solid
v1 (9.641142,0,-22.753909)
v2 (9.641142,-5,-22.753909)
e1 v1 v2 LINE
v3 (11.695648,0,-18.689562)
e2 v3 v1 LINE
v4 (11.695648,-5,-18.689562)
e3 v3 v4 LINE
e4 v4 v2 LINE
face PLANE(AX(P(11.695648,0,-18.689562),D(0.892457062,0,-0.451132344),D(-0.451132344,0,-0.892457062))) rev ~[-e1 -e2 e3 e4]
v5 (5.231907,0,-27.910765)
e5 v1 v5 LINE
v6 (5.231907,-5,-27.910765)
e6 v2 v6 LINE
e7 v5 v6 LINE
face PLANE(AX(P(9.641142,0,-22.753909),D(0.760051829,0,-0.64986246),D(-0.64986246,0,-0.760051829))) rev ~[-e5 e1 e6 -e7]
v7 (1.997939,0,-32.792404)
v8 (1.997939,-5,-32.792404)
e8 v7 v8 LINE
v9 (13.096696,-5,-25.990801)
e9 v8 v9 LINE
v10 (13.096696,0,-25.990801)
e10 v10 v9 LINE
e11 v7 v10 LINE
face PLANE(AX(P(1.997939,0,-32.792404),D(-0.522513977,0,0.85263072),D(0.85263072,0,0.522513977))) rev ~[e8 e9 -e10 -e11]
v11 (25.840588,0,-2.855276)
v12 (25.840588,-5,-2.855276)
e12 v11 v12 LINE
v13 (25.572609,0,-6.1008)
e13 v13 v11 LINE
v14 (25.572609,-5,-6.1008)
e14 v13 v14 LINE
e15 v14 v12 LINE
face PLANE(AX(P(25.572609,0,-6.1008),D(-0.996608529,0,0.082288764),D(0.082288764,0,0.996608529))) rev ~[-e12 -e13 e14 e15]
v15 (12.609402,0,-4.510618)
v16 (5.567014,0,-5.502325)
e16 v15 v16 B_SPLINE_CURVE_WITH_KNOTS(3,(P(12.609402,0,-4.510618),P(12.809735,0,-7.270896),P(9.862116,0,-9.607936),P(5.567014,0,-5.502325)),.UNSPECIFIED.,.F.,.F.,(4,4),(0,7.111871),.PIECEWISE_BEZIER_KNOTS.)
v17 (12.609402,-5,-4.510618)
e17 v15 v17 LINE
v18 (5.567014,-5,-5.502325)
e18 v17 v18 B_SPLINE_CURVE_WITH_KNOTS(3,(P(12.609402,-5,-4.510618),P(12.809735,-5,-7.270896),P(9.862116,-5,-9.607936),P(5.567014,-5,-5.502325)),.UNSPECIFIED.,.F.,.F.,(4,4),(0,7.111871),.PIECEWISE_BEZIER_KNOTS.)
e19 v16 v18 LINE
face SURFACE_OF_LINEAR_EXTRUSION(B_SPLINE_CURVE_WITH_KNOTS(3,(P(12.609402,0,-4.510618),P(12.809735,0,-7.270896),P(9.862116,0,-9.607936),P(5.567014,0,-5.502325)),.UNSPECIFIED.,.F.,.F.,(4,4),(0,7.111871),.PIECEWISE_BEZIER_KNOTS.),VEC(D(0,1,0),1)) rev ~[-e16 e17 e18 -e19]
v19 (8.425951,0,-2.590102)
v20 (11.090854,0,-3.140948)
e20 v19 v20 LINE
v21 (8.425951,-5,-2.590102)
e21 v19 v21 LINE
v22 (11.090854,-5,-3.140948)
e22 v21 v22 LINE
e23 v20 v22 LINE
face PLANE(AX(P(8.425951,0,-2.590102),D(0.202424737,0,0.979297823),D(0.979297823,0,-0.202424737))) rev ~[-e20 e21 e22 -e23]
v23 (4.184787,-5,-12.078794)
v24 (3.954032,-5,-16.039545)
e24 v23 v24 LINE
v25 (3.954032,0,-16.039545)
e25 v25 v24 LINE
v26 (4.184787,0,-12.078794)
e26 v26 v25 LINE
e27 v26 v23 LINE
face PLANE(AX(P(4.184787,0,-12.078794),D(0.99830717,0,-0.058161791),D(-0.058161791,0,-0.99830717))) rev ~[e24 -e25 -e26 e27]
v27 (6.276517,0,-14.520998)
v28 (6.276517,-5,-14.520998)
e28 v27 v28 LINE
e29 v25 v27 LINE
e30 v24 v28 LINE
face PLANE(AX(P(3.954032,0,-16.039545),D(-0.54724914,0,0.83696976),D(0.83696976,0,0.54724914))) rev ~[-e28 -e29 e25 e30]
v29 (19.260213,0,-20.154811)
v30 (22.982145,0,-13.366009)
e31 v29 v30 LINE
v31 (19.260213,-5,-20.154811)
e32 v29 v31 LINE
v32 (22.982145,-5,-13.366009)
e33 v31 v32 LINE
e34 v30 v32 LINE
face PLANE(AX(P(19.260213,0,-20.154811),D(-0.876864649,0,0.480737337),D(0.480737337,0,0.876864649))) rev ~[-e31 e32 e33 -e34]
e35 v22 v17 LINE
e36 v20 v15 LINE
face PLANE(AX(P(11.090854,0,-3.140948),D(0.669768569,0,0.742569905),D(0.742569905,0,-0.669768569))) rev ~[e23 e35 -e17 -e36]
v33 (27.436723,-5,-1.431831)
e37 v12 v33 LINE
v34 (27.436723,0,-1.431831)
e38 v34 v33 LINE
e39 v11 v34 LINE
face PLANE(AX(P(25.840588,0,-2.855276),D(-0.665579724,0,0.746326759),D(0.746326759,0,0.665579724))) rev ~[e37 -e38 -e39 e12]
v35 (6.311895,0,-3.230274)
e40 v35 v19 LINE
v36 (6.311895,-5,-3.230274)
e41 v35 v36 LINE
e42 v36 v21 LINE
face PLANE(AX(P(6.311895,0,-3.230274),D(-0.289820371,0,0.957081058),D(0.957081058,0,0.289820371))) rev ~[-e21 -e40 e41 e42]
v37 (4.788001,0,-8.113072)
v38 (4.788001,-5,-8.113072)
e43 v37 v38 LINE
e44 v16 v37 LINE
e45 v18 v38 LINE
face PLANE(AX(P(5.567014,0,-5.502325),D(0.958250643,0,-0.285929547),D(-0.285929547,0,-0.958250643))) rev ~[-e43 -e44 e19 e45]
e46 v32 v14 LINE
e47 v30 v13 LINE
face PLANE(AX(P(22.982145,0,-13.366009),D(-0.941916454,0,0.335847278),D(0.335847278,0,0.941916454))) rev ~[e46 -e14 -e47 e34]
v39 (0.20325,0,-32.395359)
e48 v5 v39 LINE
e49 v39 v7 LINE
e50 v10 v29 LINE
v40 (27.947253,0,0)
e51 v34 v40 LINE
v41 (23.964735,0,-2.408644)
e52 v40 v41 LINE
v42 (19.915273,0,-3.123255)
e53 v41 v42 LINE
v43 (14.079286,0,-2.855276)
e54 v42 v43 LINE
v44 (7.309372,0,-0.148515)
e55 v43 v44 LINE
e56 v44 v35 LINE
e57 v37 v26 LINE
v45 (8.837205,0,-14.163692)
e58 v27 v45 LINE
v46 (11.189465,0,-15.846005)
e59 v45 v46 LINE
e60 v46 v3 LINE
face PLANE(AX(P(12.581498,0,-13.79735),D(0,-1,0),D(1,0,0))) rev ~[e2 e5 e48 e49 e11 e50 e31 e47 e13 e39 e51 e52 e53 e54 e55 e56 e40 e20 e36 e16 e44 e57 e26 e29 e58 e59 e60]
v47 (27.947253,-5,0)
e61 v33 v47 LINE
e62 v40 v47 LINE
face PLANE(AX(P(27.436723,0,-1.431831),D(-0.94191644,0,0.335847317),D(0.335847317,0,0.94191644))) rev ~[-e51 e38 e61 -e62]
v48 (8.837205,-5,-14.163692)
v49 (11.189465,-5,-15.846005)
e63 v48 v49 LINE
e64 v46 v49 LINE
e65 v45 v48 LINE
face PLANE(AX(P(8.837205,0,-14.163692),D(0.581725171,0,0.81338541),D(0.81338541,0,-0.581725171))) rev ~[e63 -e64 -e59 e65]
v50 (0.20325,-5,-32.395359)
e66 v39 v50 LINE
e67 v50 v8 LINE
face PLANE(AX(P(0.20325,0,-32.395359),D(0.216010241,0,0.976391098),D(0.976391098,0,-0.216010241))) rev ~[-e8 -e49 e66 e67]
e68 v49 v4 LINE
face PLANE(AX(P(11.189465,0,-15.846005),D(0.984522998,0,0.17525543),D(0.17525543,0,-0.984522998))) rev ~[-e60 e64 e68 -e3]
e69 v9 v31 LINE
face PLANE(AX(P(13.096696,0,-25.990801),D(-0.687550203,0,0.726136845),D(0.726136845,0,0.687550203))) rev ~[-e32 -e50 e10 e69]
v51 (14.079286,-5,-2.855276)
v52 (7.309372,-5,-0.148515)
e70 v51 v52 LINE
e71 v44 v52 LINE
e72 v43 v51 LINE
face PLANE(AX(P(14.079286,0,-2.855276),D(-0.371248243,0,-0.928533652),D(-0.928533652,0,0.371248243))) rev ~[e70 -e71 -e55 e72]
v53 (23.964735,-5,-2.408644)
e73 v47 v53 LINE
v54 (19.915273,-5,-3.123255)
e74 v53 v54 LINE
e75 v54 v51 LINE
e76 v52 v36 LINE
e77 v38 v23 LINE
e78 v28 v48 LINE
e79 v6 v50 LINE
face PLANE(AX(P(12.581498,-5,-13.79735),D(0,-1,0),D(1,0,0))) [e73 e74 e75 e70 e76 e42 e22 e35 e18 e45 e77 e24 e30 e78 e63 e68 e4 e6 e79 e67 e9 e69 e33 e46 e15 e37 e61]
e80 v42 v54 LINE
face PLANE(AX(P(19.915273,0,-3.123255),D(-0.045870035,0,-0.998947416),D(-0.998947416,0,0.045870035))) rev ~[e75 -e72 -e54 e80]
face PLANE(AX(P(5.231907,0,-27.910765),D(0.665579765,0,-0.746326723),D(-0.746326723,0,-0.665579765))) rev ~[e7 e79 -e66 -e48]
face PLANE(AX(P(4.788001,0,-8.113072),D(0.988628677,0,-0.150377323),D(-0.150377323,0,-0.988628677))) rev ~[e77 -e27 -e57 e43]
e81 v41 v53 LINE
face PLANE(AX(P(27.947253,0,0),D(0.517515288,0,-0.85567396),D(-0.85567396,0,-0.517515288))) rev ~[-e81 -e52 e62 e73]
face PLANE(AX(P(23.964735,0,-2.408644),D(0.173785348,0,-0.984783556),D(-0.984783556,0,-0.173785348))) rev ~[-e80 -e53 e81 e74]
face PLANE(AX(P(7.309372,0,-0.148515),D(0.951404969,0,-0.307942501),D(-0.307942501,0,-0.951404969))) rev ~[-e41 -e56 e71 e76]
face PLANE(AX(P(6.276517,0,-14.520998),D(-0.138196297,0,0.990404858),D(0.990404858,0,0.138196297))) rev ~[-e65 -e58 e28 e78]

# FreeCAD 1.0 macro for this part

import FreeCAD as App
import Part
import Sketcher
from FreeCAD import Vector

doc = App.newDocument("Part")
body = doc.addObject("PartDesign::Body", "Body")

# Sketch on XZ plane
sketch1 = doc.addObject("Sketcher::SketchObject", "Sketch")
body.addObject(sketch1)
sketch1.AttachmentSupport = (doc.XZ_Plane, [""])
sketch1.MapMode = "FlatFace"
sketch1.addGeometry([
    Part.LineSegment(Vector(14.079286, -2.855276, 0), Vector(7.309372, -0.148515, 0)),  # 0
    Part.LineSegment(Vector(7.309372, -0.148515, 0), Vector(6.311895, -3.230274, 0)),  # 1
    Part.LineSegment(Vector(6.311895, -3.230274, 0), Vector(8.425951, -2.590102, 0)),  # 2
    Part.LineSegment(Vector(8.425951, -2.590102, 0), Vector(11.090854, -3.140948, 0)),  # 3
    Part.LineSegment(Vector(11.090854, -3.140948, 0), Vector(12.609402, -4.510618, 0)),  # 4
    Part.BSplineCurve([Vector(12.609402, -4.510618, 0), Vector(12.809735, -7.270896, 0), Vector(9.862116, -9.607936, 0), Vector(5.567014, -5.502325, 0)], [4, 4], [0, 7.111871], False, 3, [1, 1, 1, 1], False),  # 5
    Part.LineSegment(Vector(5.567014, -5.502325, 0), Vector(4.788001, -8.113072, 0)),  # 6
    Part.LineSegment(Vector(4.788001, -8.113072, 0), Vector(4.184787, -12.078794, 0)),  # 7
    Part.LineSegment(Vector(4.184787, -12.078794, 0), Vector(3.954032, -16.039545, 0)),  # 8
    Part.LineSegment(Vector(3.954032, -16.039545, 0), Vector(6.276517, -14.520998, 0)),  # 9
    Part.LineSegment(Vector(6.276517, -14.520998, 0), Vector(8.837205, -14.163692, 0)),  # 10
    Part.LineSegment(Vector(8.837205, -14.163692, 0), Vector(11.189465, -15.846005, 0)),  # 11
    Part.LineSegment(Vector(11.189465, -15.846005, 0), Vector(11.695648, -18.689562, 0)),  # 12
    Part.LineSegment(Vector(11.695648, -18.689562, 0), Vector(9.641142, -22.753909, 0)),  # 13
    Part.LineSegment(Vector(9.641142, -22.753909, 0), Vector(5.231907, -27.910765, 0)),  # 14
    Part.LineSegment(Vector(5.231907, -27.910765, 0), Vector(0.20325, -32.395359, 0)),  # 15
    Part.LineSegment(Vector(0.20325, -32.395359, 0), Vector(1.997939, -32.792404, 0)),  # 16
    Part.LineSegment(Vector(1.997939, -32.792404, 0), Vector(13.096696, -25.990801, 0)),  # 17
    Part.LineSegment(Vector(13.096696, -25.990801, 0), Vector(19.260213, -20.154811, 0)),  # 18
    Part.LineSegment(Vector(19.260213, -20.154811, 0), Vector(22.982145, -13.366009, 0)),  # 19
    Part.LineSegment(Vector(22.982145, -13.366009, 0), Vector(25.572609, -6.1008, 0)),  # 20
    Part.LineSegment(Vector(25.572609, -6.1008, 0), Vector(25.840588, -2.855276, 0)),  # 21
    Part.LineSegment(Vector(25.840588, -2.855276, 0), Vector(27.436723, -1.431831, 0)),  # 22
    Part.LineSegment(Vector(27.436723, -1.431831, 0), Vector(27.947253, 0, 0)),  # 23
    Part.LineSegment(Vector(27.947253, 0, 0), Vector(23.964735, -2.408644, 0)),  # 24
    Part.LineSegment(Vector(23.964735, -2.408644, 0), Vector(19.915273, -3.123255, 0)),  # 25
    Part.LineSegment(Vector(19.915273, -3.123255, 0), Vector(14.079286, -2.855276, 0)),  # 26
], False)
sketch1.addConstraint([
    Sketcher.Constraint("Block", 5),
    Sketcher.Constraint("Coincident", 0, 2, 1, 1),
    Sketcher.Constraint("Coincident", 1, 2, 2, 1),
    Sketcher.Constraint("Coincident", 2, 2, 3, 1),
    Sketcher.Constraint("Coincident", 3, 2, 4, 1),
    Sketcher.Constraint("Coincident", 4, 2, 5, 1),
    Sketcher.Constraint("Coincident", 5, 2, 6, 1),
    Sketcher.Constraint("Coincident", 6, 2, 7, 1),
    Sketcher.Constraint("Coincident", 7, 2, 8, 1),
    Sketcher.Constraint("Coincident", 8, 2, 9, 1),
    Sketcher.Constraint("Coincident", 9, 2, 10, 1),
    Sketcher.Constraint("Coincident", 10, 2, 11, 1),
    Sketcher.Constraint("Coincident", 11, 2, 12, 1),
    Sketcher.Constraint("Coincident", 12, 2, 13, 1),
    Sketcher.Constraint("Coincident", 13, 2, 14, 1),
    Sketcher.Constraint("Coincident", 14, 2, 15, 1),
    Sketcher.Constraint("Coincident", 15, 2, 16, 1),
    Sketcher.Constraint("Coincident", 16, 2, 17, 1),
    Sketcher.Constraint("Coincident", 17, 2, 18, 1),
    Sketcher.Constraint("Coincident", 18, 2, 19, 1),
    Sketcher.Constraint("Coincident", 19, 2, 20, 1),
    Sketcher.Constraint("Coincident", 20, 2, 21, 1),
    Sketcher.Constraint("Coincident", 21, 2, 22, 1),
    Sketcher.Constraint("Coincident", 22, 2, 23, 1),
    Sketcher.Constraint("Coincident", 23, 2, 24, 1),
    Sketcher.Constraint("Coincident", 24, 2, 25, 1),
    Sketcher.Constraint("Coincident", 25, 2, 26, 1),
    Sketcher.Constraint("Coincident", 26, 2, 0, 1),
    Sketcher.Constraint("PointOnObject", 23, 2, -1),
    Sketcher.Constraint("Parallel", 15, 22),
    Sketcher.Constraint("Parallel", 20, 23),
    Sketcher.Constraint("Horizontal", 21, 2, 26, 2),
    Sketcher.Constraint("DistanceX", -1, 1, 6, 2, 4.788001),
    Sketcher.Constraint("DistanceY", 2, 2, -1, 1, 2.590102),
    Sketcher.Constraint("DistanceY", 17, 2, -1, 1, 25.990801),
    Sketcher.Constraint("DistanceY", 20, 2, -1, 1, 6.1008),
    Sketcher.Constraint("DistanceY", 6, 2, 1, 2, 4.882798),
    Sketcher.Constraint("DistanceY", 13, 2, 18, 2, 2.599098),
    Sketcher.Constraint("DistanceY", 18, 2, 19, 2, 6.788802),
    Sketcher.Constraint("Distance", 3, 2.721239),
    Sketcher.Constraint("Distance", 4, 2.04499),
    Sketcher.Constraint("Distance", 12, 2.888259),
    Sketcher.Constraint("Distance", 13, 4.554109),
    Sketcher.Constraint("Distance", 20, 7.71322),
    Sketcher.Constraint("Distance", 21, 3.256569),
    Sketcher.Constraint("DistanceX", -1, 1, 0, 2, 7.309372),
    Sketcher.Constraint("DistanceX", -1, 1, 2, 2, 8.425951),
    Sketcher.Constraint("DistanceY", 10, 2, -1, 1, 14.163692),
    Sketcher.Constraint("DistanceY", 12, 2, -1, 1, 18.689562),
    Sketcher.Constraint("DistanceY", 13, 2, -1, 1, 22.753909),
    Sketcher.Constraint("DistanceX", -1, 1, 15, 2, 0.20325),
    Sketcher.Constraint("DistanceY", 15, 2, -1, 1, 32.395359),
    Sketcher.Constraint("DistanceX", -1, 1, 16, 2, 1.997939),
    Sketcher.Constraint("DistanceX", -1, 1, 20, 2, 25.572609),
    Sketcher.Constraint("DistanceX", -1, 1, 21, 2, 25.840588),
    Sketcher.Constraint("DistanceY", 22, 2, -1, 1, 1.431831),
    Sketcher.Constraint("DistanceY", 1, 2, 0, 2, 3.081759),
    Sketcher.Constraint("DistanceX", 1, 2, 3, 2, 4.778959),
    Sketcher.Constraint("DistanceY", 6, 2, 2, 2, 5.52297),
    Sketcher.Constraint("DistanceY", 7, 2, 6, 2, 3.965722),
    Sketcher.Constraint("DistanceY", 8, 2, 7, 2, 3.960751),
    Sketcher.Constraint("DistanceX", 8, 2, 6, 2, 0.833969),
    Sketcher.Constraint("DistanceX", 7, 2, 9, 2, 2.09173),
    Sketcher.Constraint("DistanceY", 9, 2, 4, 2, 10.01038),
    Sketcher.Constraint("DistanceX", 9, 2, 10, 2, 2.560688),
    Sketcher.Constraint("DistanceX", 10, 2, 11, 2, 2.35226),
    Sketcher.Constraint("DistanceY", 8, 2, 11, 2, 0.19354),
    Sketcher.Constraint("DistanceX", 8, 2, 13, 2, 5.68711),
    Sketcher.Constraint("DistanceX", 14, 2, 12, 2, 6.463741),
    Sketcher.Constraint("DistanceY", 14, 2, 8, 2, 11.87122),
    Sketcher.Constraint("DistanceY", 16, 2, 14, 2, 4.881639),
    Sketcher.Constraint("DistanceX", 14, 2, 17, 2, 7.864789),
    Sketcher.Constraint("DistanceX", 13, 2, 18, 2, 9.619071),
    Sketcher.Constraint("DistanceX", 19, 2, 24, 2, 0.98259),
    Sketcher.Constraint("DistanceY", 25, 2, 24, 2, 0.714611),
    Sketcher.Constraint("DistanceY", 25, 2, 21, 2, 0.267979),
    Sketcher.Constraint("DistanceX", 4, 2, 25, 2, 7.305871),
    Sketcher.Constraint("DistanceX", 3, 2, 26, 2, 2.988432),
])
pad1 = doc.addObject("PartDesign::Pad", "Pad")
body.addObject(pad1)
pad1.Profile = sketch1
pad1.Length = 5

doc.recompute()
